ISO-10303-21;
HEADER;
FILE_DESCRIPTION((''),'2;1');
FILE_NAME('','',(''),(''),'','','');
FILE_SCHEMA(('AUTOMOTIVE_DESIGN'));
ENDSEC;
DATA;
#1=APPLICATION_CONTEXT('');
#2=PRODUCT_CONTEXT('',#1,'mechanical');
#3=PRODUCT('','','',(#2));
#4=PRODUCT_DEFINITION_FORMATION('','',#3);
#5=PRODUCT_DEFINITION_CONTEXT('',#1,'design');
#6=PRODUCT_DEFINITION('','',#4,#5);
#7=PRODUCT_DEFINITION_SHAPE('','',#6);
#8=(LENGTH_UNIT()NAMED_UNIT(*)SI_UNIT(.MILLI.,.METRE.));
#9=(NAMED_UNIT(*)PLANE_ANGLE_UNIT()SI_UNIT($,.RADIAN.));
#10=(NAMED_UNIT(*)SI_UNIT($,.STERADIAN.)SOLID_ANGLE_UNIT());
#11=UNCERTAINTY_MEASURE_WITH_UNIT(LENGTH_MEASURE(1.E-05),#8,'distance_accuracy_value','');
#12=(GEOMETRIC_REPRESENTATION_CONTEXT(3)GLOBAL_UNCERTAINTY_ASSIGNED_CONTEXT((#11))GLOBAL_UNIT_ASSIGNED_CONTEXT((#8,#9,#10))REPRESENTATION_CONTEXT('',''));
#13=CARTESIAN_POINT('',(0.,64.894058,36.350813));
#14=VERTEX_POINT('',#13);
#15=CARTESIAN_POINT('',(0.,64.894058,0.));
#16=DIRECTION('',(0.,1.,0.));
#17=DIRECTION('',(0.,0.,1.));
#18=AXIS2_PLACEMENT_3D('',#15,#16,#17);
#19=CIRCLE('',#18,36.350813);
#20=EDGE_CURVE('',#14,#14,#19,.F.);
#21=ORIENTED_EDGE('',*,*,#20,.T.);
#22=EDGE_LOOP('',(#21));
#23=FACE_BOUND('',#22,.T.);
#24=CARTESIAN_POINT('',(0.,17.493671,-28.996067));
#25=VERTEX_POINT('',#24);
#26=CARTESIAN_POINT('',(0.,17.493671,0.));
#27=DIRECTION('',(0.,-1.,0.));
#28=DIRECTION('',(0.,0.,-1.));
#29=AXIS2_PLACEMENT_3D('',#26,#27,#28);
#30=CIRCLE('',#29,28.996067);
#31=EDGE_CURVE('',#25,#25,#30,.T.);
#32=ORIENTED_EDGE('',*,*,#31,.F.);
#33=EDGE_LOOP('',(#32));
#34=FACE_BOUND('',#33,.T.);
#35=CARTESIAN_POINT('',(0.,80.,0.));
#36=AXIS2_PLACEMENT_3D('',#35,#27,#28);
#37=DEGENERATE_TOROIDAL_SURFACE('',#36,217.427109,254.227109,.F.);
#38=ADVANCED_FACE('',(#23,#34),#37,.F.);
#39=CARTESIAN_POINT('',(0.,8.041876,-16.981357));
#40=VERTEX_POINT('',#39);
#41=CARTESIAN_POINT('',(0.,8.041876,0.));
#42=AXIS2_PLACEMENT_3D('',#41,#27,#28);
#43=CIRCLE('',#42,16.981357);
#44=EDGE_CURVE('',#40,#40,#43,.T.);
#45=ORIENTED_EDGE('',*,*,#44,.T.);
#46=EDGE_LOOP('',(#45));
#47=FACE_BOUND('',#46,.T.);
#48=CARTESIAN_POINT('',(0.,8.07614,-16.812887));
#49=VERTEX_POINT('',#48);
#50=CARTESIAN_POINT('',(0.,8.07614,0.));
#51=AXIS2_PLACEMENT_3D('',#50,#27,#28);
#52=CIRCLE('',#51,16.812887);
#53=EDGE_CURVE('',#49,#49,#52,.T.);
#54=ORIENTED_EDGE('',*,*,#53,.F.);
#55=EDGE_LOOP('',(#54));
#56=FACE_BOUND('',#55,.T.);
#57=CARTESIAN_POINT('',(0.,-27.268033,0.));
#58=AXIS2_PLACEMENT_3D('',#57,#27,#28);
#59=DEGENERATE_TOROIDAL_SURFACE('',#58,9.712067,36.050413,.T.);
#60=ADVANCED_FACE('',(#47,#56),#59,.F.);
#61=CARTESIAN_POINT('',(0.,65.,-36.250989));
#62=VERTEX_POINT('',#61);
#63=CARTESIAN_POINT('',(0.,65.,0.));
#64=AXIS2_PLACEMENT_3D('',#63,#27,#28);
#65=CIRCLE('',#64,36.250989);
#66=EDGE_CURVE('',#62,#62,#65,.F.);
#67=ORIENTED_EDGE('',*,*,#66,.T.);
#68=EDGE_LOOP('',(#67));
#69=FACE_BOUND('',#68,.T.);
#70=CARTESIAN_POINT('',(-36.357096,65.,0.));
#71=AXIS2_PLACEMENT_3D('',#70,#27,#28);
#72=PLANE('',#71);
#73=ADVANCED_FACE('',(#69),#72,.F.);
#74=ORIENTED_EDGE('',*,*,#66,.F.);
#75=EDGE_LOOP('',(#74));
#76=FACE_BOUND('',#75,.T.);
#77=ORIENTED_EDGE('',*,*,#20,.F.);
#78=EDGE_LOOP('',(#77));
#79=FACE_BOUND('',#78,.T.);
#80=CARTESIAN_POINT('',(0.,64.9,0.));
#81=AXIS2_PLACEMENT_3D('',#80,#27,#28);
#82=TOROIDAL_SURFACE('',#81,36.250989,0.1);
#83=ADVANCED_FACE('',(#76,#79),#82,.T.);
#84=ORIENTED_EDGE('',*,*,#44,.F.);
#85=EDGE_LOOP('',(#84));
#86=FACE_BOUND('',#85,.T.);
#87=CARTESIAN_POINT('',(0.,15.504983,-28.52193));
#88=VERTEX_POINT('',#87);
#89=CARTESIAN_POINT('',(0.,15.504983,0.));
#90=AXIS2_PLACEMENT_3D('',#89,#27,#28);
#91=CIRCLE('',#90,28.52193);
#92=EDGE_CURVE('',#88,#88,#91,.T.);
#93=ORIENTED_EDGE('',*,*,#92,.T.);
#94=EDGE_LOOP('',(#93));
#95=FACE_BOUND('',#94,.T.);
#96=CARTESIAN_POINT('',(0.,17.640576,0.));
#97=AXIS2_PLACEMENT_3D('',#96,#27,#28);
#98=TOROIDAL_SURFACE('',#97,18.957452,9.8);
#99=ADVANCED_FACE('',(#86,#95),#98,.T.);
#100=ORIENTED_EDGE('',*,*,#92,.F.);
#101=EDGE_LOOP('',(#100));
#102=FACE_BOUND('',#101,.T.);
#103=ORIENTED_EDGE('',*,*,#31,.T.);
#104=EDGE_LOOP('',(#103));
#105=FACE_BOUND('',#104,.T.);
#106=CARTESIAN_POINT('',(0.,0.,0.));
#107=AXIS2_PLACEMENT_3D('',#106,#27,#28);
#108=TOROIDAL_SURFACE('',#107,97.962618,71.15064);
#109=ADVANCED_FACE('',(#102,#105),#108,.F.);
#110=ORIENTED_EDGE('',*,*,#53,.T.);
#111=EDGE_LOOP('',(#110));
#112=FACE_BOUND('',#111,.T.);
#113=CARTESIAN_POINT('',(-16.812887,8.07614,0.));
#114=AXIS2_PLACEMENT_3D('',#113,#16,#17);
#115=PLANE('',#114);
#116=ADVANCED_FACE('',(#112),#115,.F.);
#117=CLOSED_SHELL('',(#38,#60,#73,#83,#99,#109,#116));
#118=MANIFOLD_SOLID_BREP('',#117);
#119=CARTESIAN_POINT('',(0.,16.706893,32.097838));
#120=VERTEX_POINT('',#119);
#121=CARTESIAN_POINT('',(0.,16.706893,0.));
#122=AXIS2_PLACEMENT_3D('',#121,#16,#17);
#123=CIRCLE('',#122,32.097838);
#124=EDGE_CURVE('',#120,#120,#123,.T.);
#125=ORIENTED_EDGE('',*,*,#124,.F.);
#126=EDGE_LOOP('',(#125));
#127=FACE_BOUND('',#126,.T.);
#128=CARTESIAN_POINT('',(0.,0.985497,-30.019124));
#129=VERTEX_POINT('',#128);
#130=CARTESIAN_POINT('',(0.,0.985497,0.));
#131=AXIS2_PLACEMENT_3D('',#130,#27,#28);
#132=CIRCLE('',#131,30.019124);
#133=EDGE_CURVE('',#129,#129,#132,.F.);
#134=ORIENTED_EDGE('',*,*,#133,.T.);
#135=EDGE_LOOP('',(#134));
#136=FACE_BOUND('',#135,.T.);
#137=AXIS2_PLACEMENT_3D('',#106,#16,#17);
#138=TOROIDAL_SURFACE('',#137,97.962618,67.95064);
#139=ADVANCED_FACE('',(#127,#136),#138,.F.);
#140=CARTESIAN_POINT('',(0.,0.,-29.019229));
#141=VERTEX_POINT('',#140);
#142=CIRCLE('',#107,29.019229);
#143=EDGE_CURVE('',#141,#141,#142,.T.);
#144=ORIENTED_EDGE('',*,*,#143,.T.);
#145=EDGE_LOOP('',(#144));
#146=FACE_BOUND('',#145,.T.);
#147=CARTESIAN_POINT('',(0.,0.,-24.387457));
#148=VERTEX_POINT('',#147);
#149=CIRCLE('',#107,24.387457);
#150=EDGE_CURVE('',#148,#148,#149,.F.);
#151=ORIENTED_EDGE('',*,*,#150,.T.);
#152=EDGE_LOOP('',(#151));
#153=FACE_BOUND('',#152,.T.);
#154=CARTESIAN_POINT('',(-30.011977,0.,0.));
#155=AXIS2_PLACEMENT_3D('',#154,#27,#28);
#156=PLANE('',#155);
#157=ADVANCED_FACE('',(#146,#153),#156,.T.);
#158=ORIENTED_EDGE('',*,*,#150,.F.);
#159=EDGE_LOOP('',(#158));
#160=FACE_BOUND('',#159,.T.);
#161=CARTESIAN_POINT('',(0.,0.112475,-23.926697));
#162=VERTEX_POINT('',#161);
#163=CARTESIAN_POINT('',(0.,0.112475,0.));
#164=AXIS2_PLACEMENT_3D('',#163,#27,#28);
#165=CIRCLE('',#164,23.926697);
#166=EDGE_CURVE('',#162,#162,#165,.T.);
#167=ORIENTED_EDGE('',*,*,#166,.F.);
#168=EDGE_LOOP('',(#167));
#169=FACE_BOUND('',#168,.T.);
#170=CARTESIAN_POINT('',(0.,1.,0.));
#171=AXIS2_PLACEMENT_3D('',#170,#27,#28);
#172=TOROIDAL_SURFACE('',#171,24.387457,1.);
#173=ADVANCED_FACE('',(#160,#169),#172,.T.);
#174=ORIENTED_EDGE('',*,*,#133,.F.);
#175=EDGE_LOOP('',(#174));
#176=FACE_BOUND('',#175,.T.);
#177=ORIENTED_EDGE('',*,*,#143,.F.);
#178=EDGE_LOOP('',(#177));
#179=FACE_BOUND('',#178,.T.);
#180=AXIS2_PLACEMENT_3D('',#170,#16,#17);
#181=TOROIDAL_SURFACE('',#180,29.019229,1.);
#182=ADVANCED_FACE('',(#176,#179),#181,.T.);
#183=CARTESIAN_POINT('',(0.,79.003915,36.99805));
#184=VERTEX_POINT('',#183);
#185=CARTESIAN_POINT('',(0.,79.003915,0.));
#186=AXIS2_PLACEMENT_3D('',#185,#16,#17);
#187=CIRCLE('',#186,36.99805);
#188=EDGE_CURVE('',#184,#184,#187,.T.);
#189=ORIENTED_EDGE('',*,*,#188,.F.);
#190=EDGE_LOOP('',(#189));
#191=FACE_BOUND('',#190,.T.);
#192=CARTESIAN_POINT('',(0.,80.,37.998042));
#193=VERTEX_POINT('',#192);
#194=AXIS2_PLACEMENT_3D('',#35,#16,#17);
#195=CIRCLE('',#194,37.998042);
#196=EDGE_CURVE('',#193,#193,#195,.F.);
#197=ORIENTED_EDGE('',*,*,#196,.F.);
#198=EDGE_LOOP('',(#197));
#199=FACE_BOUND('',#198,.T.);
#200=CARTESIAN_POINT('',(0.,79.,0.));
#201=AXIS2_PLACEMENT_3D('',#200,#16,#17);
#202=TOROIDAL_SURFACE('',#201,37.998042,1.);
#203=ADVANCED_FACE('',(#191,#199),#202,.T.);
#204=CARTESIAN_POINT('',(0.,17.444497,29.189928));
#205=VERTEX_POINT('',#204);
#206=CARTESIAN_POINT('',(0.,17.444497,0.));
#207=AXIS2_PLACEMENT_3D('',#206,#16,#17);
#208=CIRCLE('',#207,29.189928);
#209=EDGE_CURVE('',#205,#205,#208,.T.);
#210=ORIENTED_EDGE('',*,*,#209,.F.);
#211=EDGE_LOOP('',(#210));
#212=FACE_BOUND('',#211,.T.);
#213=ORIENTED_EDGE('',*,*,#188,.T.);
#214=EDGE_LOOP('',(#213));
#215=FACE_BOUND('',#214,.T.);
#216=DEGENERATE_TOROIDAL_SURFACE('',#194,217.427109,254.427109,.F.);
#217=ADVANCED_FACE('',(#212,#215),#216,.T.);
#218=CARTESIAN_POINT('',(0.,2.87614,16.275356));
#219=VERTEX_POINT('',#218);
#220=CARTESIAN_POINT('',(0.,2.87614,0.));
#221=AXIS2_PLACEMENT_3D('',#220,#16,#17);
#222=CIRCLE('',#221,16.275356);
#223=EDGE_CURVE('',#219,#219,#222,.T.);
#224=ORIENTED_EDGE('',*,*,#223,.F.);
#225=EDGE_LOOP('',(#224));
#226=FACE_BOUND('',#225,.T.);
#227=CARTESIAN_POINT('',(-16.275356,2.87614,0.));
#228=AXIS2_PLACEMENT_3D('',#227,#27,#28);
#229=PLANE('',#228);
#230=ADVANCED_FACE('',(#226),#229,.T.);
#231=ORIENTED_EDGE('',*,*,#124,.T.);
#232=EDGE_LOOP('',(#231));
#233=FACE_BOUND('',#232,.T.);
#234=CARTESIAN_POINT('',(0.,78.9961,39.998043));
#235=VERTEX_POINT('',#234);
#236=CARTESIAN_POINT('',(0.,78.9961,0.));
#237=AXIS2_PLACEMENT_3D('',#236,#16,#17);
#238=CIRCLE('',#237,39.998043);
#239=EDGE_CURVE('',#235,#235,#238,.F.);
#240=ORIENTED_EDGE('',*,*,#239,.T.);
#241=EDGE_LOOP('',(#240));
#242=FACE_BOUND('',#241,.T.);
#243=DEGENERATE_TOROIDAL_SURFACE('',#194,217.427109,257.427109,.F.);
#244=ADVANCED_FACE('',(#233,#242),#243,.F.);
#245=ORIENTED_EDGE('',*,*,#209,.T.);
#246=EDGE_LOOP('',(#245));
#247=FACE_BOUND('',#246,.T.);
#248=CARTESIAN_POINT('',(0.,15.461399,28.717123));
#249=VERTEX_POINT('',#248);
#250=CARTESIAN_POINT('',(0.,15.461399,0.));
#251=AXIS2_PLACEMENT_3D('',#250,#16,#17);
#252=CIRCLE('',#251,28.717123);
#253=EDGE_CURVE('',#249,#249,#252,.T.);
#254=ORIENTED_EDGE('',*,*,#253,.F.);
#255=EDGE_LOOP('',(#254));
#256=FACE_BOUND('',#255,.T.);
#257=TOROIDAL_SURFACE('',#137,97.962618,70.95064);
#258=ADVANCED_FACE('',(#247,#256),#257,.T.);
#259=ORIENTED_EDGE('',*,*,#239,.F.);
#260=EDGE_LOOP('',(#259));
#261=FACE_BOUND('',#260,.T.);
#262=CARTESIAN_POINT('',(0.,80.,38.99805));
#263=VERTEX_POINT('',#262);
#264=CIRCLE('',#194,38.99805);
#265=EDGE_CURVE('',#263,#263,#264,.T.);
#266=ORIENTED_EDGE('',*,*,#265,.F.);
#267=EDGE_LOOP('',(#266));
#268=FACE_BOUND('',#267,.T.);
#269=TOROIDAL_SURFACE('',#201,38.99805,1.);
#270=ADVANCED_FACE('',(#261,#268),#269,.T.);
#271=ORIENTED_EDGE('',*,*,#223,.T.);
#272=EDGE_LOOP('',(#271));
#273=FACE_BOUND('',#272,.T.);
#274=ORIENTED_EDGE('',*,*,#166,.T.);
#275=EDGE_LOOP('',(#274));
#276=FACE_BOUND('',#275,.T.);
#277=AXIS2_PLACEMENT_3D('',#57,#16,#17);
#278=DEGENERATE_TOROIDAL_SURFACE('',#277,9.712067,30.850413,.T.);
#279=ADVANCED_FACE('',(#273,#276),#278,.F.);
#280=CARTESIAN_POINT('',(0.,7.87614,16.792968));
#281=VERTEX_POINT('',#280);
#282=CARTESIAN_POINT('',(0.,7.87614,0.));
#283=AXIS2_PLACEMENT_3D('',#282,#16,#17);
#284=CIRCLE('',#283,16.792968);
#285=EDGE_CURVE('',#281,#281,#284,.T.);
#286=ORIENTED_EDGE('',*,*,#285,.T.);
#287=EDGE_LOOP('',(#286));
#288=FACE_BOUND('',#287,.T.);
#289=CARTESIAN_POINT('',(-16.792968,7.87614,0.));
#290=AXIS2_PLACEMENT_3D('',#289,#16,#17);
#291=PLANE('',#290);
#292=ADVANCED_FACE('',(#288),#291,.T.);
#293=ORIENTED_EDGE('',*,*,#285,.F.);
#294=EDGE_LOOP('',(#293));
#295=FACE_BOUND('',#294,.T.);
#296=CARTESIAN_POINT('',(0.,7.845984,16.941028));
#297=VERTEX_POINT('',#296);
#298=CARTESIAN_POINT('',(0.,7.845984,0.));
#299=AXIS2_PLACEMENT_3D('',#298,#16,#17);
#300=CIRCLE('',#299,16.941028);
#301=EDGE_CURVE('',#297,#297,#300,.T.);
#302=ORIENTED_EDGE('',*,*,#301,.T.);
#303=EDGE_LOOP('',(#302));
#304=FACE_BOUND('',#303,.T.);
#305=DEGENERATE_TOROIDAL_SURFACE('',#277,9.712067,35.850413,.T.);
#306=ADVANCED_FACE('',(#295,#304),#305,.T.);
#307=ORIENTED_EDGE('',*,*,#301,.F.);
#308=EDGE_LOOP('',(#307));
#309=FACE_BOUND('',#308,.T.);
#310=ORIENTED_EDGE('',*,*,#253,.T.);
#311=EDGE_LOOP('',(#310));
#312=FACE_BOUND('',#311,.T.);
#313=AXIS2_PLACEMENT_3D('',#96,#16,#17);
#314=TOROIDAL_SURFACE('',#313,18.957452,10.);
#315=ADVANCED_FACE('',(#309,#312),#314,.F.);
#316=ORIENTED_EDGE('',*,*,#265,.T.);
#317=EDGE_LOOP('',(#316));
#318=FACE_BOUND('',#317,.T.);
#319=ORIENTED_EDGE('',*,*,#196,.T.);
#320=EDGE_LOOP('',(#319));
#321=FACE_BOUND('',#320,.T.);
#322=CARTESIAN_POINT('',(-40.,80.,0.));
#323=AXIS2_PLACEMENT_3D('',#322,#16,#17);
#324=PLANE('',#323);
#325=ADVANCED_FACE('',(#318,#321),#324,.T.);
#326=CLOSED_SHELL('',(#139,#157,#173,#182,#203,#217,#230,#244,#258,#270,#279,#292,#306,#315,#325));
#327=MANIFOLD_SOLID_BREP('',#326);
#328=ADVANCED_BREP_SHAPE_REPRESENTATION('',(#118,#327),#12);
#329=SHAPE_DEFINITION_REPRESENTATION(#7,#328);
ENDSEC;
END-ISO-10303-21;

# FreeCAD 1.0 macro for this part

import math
import FreeCAD as App
import Part
import Sketcher

V = App.Vector
Q = App.Units.Quantity


def edges_at(feature, points):
    """Names of the edges that pass closest to the given points."""
    edges = feature.Shape.Edges
    near = lambda p: min(range(len(edges)), key=lambda i: edges[i].distToShape(Part.Vertex(*p))[0])
    return sorted({f"Edge{near(p) + 1}" for p in points})

doc = App.newDocument("Part")
body = doc.addObject("PartDesign::Body", "Body")

sketch1 = body.newObject("Sketcher::SketchObject", "Sketch")
sketch1.AttachmentSupport = (doc.getObject("XY_Plane"), [""])
sketch1.MapMode = "FlatFace"
sketch1.addGeometry([
    Part.LineSegment(V(-30.01, 0, 0), V(-24.14, 0, 0)),
    Part.ArcOfCircle(Part.Circle(V(-9.71, -27.27, 0), V(0, 0, 1), 30.85), math.radians(102.28), math.radians(117.89)),
    Part.LineSegment(V(-16.28, 2.88, 0), V(0, 2.88, 0)),
    Part.LineSegment(V(0, 2.88, 0), V(0, 7.88, 0)),
    Part.LineSegment(V(0, 7.88, 0), V(-16.79, 7.88, 0)),
    Part.ArcOfCircle(Part.Circle(V(-9.71, -27.27, 0), V(0, 0, 1), 35.85), math.radians(101.39), math.radians(101.63)),
    Part.ArcOfCircle(Part.Circle(V(-18.96, 17.64, 0), V(0, 0, 1), 10), math.radians(-167), math.radians(-78)),
    Part.ArcOfCircle(Part.Circle(V(-97.96, 0, 0), V(0, 0, 1), 70.95), math.radians(12.59), math.radians(14.23)),
    Part.ArcOfCircle(Part.Circle(V(217.43, 80, 0), V(0, 0, 1), 254.43), math.radians(-180), math.radians(-165.77)),
    Part.LineSegment(V(-37, 80, 0), V(-40, 80, 0)),
    Part.ArcOfCircle(Part.Circle(V(217.43, 80, 0), V(0, 0, 1), 257.43), math.radians(180), math.radians(194.23)),
    Part.ArcOfCircle(Part.Circle(V(-97.96, 0, 0), V(0, 0, 1), 67.95), math.radians(0), math.radians(14.23)),
], False)
sketch1.addConstraint([
    Sketcher.Constraint("Coincident", 0, 2, 1, 2),
    Sketcher.Constraint("Coincident", 1, 1, 2, 1),
    Sketcher.Constraint("Coincident", 2, 2, 3, 1),
    Sketcher.Constraint("Coincident", 3, 2, 4, 1),
    Sketcher.Constraint("Coincident", 4, 2, 5, 1),
    Sketcher.Constraint("Tangent", 5, 2, 6, 2),
    Sketcher.Constraint("Tangent", 6, 1, 7, 1),
    Sketcher.Constraint("Tangent", 7, 2, 8, 2),
    Sketcher.Constraint("Coincident", 8, 1, 9, 1),
    Sketcher.Constraint("Coincident", 9, 2, 10, 1),
    Sketcher.Constraint("Tangent", 10, 2, 11, 2),
    Sketcher.Constraint("Coincident", 11, 1, 0, 1),
    Sketcher.Constraint("Horizontal", 0),
    Sketcher.Constraint("Horizontal", 2),
    Sketcher.Constraint("Vertical", 3),
    Sketcher.Constraint("Horizontal", 4),
    Sketcher.Constraint("Horizontal", 9),
    Sketcher.Constraint("Coincident", 10, 3, 8, 3),
    Sketcher.Constraint("Coincident", 11, 3, 7, 3),
    Sketcher.Constraint("PointOnObject", 7, 3, -1),
    Sketcher.Constraint("PointOnObject", 0, 2, -1),
    Sketcher.Constraint("PointOnObject", 2, 2, -2),
    Sketcher.Constraint("Horizontal", 10, 3, 8, 1),
    Sketcher.Constraint("Radius", 6, Q("10 mm")),
    Sketcher.Constraint("DistanceX", 9, 2, 9, 1, Q("3 mm")),
    Sketcher.Constraint("DistanceY", 3, 1, 3, 2, Q("5 mm")),
    Sketcher.Constraint("DistanceY", -1, 1, 8, 3, Q("80 mm")),
    Sketcher.Constraint("DistanceX", 8, 1, -1, 1, Q("37 mm")),
    Sketcher.Constraint("Radius", 8, Q("254.427109 mm")),
    Sketcher.Constraint("Radius", 11, Q("67.95064 mm")),
    Sketcher.Constraint("Radius", 1, Q("30.850413 mm")),
    Sketcher.Constraint("Radius", 5, Q("35.850654 mm")),
    Sketcher.Constraint("DistanceY", -1, 1, 6, 1, Q("15.461399 mm")),
    Sketcher.Constraint("DistanceX", 7, 3, 5, 3, Q("88.250602 mm")),
    Sketcher.Constraint("DistanceX", 0, 1, 0, 2, Q("5.870693 mm")),
    Sketcher.Constraint("DistanceX", 2, 1, 2, 2, Q("16.275356 mm")),
    Sketcher.Constraint("DistanceX", 4, 2, 4, 1, Q("16.792968 mm")),
])
revolution = body.newObject("PartDesign::Revolution", "Revolution")
revolution.Profile = sketch1
revolution.ReferenceAxis = (sketch1, ["V_Axis"])
revolution.Angle = 360
doc.recompute()

fillet = body.newObject("PartDesign::Fillet", "Fillet")
fillet.Base = (revolution, edges_at(revolution, [
    (24.141, 0, 0),
    (30.012, 0, 0),
    (40, 80, 0),
    (37, 80, 0),
]))
fillet.Radius = 1
body2 = doc.addObject("PartDesign::Body", "Body001")

sketch2 = body2.newObject("Sketcher::SketchObject", "Sketch001")
sketch2.AttachmentSupport = (doc.getObject("XY_Plane001"), [""])
sketch2.MapMode = "FlatFace"
sketch2.addGeometry([
    Part.LineSegment(V(0, 65, 0), V(-36.36, 65, 0)),
    Part.ArcOfCircle(Part.Circle(V(217.43, 80, 0), V(0, 0, 1), 254.23), math.radians(-176.62), math.radians(-165.77)),
    Part.ArcOfCircle(Part.Circle(V(-97.96, 0, 0), V(0, 0, 1), 71.15), math.radians(12.59), math.radians(14.23)),
    Part.ArcOfCircle(Part.Circle(V(-18.96, 17.64, 0), V(0, 0, 1), 9.8), math.radians(-167), math.radians(-78)),
    Part.ArcOfCircle(Part.Circle(V(-9.71, -27.27, 0), V(0, 0, 1), 36.05), math.radians(101.36), math.radians(101.63)),
    Part.LineSegment(V(-16.81, 8.08, 0), V(0, 8.08, 0)),
    Part.LineSegment(V(0, 8.08, 0), V(0, 65, 0)),
], False)
sketch2.addConstraint([
    Sketcher.Constraint("Coincident", 0, 2, 1, 1),
    Sketcher.Constraint("Tangent", 1, 2, 2, 2),
    Sketcher.Constraint("Tangent", 2, 1, 3, 1),
    Sketcher.Constraint("Tangent", 3, 2, 4, 2),
    Sketcher.Constraint("Coincident", 4, 1, 5, 1),
    Sketcher.Constraint("Coincident", 5, 2, 6, 1),
    Sketcher.Constraint("Coincident", 6, 2, 0, 1),
    Sketcher.Constraint("Horizontal", 0),
    Sketcher.Constraint("Horizontal", 5),
    Sketcher.Constraint("Vertical", 6),
    Sketcher.Constraint("PointOnObject", 2, 3, -1),
    Sketcher.Constraint("PointOnObject", 5, 2, -2),
    Sketcher.Constraint("Radius", 3, Q("9.8 mm")),
    Sketcher.Constraint("DistanceY", -1, 1, 1, 3, Q("80 mm")),
    Sketcher.Constraint("DistanceY", -1, 1, 0, 2, Q("65 mm")),
    Sketcher.Constraint("Radius", 1, Q("254.227109 mm")),
    Sketcher.Constraint("Radius", 2, Q("71.15064 mm")),
    Sketcher.Constraint("Radius", 4, Q("36.050324 mm")),
    Sketcher.Constraint("DistanceY", 6, 1, 6, 2, Q("56.92386 mm")),
    Sketcher.Constraint("DistanceY", 3, 2, 3, 3, Q("9.5987 mm")),
    Sketcher.Constraint("DistanceX", 0, 2, 0, 1, Q("36.357096 mm")),
    Sketcher.Constraint("DistanceX", 5, 1, 5, 2, Q("16.812887 mm")),
])
revolution2 = body2.newObject("PartDesign::Revolution", "Revolution001")
revolution2.Profile = sketch2
revolution2.ReferenceAxis = (sketch2, ["V_Axis"])
revolution2.Angle = 360
doc.recompute()

fillet2 = body2.newObject("PartDesign::Fillet", "Fillet001")
fillet2.Base = (revolution2, edges_at(revolution2, [(36.357, 65, 0)]))
fillet2.Radius = 0.1

doc.recompute()
